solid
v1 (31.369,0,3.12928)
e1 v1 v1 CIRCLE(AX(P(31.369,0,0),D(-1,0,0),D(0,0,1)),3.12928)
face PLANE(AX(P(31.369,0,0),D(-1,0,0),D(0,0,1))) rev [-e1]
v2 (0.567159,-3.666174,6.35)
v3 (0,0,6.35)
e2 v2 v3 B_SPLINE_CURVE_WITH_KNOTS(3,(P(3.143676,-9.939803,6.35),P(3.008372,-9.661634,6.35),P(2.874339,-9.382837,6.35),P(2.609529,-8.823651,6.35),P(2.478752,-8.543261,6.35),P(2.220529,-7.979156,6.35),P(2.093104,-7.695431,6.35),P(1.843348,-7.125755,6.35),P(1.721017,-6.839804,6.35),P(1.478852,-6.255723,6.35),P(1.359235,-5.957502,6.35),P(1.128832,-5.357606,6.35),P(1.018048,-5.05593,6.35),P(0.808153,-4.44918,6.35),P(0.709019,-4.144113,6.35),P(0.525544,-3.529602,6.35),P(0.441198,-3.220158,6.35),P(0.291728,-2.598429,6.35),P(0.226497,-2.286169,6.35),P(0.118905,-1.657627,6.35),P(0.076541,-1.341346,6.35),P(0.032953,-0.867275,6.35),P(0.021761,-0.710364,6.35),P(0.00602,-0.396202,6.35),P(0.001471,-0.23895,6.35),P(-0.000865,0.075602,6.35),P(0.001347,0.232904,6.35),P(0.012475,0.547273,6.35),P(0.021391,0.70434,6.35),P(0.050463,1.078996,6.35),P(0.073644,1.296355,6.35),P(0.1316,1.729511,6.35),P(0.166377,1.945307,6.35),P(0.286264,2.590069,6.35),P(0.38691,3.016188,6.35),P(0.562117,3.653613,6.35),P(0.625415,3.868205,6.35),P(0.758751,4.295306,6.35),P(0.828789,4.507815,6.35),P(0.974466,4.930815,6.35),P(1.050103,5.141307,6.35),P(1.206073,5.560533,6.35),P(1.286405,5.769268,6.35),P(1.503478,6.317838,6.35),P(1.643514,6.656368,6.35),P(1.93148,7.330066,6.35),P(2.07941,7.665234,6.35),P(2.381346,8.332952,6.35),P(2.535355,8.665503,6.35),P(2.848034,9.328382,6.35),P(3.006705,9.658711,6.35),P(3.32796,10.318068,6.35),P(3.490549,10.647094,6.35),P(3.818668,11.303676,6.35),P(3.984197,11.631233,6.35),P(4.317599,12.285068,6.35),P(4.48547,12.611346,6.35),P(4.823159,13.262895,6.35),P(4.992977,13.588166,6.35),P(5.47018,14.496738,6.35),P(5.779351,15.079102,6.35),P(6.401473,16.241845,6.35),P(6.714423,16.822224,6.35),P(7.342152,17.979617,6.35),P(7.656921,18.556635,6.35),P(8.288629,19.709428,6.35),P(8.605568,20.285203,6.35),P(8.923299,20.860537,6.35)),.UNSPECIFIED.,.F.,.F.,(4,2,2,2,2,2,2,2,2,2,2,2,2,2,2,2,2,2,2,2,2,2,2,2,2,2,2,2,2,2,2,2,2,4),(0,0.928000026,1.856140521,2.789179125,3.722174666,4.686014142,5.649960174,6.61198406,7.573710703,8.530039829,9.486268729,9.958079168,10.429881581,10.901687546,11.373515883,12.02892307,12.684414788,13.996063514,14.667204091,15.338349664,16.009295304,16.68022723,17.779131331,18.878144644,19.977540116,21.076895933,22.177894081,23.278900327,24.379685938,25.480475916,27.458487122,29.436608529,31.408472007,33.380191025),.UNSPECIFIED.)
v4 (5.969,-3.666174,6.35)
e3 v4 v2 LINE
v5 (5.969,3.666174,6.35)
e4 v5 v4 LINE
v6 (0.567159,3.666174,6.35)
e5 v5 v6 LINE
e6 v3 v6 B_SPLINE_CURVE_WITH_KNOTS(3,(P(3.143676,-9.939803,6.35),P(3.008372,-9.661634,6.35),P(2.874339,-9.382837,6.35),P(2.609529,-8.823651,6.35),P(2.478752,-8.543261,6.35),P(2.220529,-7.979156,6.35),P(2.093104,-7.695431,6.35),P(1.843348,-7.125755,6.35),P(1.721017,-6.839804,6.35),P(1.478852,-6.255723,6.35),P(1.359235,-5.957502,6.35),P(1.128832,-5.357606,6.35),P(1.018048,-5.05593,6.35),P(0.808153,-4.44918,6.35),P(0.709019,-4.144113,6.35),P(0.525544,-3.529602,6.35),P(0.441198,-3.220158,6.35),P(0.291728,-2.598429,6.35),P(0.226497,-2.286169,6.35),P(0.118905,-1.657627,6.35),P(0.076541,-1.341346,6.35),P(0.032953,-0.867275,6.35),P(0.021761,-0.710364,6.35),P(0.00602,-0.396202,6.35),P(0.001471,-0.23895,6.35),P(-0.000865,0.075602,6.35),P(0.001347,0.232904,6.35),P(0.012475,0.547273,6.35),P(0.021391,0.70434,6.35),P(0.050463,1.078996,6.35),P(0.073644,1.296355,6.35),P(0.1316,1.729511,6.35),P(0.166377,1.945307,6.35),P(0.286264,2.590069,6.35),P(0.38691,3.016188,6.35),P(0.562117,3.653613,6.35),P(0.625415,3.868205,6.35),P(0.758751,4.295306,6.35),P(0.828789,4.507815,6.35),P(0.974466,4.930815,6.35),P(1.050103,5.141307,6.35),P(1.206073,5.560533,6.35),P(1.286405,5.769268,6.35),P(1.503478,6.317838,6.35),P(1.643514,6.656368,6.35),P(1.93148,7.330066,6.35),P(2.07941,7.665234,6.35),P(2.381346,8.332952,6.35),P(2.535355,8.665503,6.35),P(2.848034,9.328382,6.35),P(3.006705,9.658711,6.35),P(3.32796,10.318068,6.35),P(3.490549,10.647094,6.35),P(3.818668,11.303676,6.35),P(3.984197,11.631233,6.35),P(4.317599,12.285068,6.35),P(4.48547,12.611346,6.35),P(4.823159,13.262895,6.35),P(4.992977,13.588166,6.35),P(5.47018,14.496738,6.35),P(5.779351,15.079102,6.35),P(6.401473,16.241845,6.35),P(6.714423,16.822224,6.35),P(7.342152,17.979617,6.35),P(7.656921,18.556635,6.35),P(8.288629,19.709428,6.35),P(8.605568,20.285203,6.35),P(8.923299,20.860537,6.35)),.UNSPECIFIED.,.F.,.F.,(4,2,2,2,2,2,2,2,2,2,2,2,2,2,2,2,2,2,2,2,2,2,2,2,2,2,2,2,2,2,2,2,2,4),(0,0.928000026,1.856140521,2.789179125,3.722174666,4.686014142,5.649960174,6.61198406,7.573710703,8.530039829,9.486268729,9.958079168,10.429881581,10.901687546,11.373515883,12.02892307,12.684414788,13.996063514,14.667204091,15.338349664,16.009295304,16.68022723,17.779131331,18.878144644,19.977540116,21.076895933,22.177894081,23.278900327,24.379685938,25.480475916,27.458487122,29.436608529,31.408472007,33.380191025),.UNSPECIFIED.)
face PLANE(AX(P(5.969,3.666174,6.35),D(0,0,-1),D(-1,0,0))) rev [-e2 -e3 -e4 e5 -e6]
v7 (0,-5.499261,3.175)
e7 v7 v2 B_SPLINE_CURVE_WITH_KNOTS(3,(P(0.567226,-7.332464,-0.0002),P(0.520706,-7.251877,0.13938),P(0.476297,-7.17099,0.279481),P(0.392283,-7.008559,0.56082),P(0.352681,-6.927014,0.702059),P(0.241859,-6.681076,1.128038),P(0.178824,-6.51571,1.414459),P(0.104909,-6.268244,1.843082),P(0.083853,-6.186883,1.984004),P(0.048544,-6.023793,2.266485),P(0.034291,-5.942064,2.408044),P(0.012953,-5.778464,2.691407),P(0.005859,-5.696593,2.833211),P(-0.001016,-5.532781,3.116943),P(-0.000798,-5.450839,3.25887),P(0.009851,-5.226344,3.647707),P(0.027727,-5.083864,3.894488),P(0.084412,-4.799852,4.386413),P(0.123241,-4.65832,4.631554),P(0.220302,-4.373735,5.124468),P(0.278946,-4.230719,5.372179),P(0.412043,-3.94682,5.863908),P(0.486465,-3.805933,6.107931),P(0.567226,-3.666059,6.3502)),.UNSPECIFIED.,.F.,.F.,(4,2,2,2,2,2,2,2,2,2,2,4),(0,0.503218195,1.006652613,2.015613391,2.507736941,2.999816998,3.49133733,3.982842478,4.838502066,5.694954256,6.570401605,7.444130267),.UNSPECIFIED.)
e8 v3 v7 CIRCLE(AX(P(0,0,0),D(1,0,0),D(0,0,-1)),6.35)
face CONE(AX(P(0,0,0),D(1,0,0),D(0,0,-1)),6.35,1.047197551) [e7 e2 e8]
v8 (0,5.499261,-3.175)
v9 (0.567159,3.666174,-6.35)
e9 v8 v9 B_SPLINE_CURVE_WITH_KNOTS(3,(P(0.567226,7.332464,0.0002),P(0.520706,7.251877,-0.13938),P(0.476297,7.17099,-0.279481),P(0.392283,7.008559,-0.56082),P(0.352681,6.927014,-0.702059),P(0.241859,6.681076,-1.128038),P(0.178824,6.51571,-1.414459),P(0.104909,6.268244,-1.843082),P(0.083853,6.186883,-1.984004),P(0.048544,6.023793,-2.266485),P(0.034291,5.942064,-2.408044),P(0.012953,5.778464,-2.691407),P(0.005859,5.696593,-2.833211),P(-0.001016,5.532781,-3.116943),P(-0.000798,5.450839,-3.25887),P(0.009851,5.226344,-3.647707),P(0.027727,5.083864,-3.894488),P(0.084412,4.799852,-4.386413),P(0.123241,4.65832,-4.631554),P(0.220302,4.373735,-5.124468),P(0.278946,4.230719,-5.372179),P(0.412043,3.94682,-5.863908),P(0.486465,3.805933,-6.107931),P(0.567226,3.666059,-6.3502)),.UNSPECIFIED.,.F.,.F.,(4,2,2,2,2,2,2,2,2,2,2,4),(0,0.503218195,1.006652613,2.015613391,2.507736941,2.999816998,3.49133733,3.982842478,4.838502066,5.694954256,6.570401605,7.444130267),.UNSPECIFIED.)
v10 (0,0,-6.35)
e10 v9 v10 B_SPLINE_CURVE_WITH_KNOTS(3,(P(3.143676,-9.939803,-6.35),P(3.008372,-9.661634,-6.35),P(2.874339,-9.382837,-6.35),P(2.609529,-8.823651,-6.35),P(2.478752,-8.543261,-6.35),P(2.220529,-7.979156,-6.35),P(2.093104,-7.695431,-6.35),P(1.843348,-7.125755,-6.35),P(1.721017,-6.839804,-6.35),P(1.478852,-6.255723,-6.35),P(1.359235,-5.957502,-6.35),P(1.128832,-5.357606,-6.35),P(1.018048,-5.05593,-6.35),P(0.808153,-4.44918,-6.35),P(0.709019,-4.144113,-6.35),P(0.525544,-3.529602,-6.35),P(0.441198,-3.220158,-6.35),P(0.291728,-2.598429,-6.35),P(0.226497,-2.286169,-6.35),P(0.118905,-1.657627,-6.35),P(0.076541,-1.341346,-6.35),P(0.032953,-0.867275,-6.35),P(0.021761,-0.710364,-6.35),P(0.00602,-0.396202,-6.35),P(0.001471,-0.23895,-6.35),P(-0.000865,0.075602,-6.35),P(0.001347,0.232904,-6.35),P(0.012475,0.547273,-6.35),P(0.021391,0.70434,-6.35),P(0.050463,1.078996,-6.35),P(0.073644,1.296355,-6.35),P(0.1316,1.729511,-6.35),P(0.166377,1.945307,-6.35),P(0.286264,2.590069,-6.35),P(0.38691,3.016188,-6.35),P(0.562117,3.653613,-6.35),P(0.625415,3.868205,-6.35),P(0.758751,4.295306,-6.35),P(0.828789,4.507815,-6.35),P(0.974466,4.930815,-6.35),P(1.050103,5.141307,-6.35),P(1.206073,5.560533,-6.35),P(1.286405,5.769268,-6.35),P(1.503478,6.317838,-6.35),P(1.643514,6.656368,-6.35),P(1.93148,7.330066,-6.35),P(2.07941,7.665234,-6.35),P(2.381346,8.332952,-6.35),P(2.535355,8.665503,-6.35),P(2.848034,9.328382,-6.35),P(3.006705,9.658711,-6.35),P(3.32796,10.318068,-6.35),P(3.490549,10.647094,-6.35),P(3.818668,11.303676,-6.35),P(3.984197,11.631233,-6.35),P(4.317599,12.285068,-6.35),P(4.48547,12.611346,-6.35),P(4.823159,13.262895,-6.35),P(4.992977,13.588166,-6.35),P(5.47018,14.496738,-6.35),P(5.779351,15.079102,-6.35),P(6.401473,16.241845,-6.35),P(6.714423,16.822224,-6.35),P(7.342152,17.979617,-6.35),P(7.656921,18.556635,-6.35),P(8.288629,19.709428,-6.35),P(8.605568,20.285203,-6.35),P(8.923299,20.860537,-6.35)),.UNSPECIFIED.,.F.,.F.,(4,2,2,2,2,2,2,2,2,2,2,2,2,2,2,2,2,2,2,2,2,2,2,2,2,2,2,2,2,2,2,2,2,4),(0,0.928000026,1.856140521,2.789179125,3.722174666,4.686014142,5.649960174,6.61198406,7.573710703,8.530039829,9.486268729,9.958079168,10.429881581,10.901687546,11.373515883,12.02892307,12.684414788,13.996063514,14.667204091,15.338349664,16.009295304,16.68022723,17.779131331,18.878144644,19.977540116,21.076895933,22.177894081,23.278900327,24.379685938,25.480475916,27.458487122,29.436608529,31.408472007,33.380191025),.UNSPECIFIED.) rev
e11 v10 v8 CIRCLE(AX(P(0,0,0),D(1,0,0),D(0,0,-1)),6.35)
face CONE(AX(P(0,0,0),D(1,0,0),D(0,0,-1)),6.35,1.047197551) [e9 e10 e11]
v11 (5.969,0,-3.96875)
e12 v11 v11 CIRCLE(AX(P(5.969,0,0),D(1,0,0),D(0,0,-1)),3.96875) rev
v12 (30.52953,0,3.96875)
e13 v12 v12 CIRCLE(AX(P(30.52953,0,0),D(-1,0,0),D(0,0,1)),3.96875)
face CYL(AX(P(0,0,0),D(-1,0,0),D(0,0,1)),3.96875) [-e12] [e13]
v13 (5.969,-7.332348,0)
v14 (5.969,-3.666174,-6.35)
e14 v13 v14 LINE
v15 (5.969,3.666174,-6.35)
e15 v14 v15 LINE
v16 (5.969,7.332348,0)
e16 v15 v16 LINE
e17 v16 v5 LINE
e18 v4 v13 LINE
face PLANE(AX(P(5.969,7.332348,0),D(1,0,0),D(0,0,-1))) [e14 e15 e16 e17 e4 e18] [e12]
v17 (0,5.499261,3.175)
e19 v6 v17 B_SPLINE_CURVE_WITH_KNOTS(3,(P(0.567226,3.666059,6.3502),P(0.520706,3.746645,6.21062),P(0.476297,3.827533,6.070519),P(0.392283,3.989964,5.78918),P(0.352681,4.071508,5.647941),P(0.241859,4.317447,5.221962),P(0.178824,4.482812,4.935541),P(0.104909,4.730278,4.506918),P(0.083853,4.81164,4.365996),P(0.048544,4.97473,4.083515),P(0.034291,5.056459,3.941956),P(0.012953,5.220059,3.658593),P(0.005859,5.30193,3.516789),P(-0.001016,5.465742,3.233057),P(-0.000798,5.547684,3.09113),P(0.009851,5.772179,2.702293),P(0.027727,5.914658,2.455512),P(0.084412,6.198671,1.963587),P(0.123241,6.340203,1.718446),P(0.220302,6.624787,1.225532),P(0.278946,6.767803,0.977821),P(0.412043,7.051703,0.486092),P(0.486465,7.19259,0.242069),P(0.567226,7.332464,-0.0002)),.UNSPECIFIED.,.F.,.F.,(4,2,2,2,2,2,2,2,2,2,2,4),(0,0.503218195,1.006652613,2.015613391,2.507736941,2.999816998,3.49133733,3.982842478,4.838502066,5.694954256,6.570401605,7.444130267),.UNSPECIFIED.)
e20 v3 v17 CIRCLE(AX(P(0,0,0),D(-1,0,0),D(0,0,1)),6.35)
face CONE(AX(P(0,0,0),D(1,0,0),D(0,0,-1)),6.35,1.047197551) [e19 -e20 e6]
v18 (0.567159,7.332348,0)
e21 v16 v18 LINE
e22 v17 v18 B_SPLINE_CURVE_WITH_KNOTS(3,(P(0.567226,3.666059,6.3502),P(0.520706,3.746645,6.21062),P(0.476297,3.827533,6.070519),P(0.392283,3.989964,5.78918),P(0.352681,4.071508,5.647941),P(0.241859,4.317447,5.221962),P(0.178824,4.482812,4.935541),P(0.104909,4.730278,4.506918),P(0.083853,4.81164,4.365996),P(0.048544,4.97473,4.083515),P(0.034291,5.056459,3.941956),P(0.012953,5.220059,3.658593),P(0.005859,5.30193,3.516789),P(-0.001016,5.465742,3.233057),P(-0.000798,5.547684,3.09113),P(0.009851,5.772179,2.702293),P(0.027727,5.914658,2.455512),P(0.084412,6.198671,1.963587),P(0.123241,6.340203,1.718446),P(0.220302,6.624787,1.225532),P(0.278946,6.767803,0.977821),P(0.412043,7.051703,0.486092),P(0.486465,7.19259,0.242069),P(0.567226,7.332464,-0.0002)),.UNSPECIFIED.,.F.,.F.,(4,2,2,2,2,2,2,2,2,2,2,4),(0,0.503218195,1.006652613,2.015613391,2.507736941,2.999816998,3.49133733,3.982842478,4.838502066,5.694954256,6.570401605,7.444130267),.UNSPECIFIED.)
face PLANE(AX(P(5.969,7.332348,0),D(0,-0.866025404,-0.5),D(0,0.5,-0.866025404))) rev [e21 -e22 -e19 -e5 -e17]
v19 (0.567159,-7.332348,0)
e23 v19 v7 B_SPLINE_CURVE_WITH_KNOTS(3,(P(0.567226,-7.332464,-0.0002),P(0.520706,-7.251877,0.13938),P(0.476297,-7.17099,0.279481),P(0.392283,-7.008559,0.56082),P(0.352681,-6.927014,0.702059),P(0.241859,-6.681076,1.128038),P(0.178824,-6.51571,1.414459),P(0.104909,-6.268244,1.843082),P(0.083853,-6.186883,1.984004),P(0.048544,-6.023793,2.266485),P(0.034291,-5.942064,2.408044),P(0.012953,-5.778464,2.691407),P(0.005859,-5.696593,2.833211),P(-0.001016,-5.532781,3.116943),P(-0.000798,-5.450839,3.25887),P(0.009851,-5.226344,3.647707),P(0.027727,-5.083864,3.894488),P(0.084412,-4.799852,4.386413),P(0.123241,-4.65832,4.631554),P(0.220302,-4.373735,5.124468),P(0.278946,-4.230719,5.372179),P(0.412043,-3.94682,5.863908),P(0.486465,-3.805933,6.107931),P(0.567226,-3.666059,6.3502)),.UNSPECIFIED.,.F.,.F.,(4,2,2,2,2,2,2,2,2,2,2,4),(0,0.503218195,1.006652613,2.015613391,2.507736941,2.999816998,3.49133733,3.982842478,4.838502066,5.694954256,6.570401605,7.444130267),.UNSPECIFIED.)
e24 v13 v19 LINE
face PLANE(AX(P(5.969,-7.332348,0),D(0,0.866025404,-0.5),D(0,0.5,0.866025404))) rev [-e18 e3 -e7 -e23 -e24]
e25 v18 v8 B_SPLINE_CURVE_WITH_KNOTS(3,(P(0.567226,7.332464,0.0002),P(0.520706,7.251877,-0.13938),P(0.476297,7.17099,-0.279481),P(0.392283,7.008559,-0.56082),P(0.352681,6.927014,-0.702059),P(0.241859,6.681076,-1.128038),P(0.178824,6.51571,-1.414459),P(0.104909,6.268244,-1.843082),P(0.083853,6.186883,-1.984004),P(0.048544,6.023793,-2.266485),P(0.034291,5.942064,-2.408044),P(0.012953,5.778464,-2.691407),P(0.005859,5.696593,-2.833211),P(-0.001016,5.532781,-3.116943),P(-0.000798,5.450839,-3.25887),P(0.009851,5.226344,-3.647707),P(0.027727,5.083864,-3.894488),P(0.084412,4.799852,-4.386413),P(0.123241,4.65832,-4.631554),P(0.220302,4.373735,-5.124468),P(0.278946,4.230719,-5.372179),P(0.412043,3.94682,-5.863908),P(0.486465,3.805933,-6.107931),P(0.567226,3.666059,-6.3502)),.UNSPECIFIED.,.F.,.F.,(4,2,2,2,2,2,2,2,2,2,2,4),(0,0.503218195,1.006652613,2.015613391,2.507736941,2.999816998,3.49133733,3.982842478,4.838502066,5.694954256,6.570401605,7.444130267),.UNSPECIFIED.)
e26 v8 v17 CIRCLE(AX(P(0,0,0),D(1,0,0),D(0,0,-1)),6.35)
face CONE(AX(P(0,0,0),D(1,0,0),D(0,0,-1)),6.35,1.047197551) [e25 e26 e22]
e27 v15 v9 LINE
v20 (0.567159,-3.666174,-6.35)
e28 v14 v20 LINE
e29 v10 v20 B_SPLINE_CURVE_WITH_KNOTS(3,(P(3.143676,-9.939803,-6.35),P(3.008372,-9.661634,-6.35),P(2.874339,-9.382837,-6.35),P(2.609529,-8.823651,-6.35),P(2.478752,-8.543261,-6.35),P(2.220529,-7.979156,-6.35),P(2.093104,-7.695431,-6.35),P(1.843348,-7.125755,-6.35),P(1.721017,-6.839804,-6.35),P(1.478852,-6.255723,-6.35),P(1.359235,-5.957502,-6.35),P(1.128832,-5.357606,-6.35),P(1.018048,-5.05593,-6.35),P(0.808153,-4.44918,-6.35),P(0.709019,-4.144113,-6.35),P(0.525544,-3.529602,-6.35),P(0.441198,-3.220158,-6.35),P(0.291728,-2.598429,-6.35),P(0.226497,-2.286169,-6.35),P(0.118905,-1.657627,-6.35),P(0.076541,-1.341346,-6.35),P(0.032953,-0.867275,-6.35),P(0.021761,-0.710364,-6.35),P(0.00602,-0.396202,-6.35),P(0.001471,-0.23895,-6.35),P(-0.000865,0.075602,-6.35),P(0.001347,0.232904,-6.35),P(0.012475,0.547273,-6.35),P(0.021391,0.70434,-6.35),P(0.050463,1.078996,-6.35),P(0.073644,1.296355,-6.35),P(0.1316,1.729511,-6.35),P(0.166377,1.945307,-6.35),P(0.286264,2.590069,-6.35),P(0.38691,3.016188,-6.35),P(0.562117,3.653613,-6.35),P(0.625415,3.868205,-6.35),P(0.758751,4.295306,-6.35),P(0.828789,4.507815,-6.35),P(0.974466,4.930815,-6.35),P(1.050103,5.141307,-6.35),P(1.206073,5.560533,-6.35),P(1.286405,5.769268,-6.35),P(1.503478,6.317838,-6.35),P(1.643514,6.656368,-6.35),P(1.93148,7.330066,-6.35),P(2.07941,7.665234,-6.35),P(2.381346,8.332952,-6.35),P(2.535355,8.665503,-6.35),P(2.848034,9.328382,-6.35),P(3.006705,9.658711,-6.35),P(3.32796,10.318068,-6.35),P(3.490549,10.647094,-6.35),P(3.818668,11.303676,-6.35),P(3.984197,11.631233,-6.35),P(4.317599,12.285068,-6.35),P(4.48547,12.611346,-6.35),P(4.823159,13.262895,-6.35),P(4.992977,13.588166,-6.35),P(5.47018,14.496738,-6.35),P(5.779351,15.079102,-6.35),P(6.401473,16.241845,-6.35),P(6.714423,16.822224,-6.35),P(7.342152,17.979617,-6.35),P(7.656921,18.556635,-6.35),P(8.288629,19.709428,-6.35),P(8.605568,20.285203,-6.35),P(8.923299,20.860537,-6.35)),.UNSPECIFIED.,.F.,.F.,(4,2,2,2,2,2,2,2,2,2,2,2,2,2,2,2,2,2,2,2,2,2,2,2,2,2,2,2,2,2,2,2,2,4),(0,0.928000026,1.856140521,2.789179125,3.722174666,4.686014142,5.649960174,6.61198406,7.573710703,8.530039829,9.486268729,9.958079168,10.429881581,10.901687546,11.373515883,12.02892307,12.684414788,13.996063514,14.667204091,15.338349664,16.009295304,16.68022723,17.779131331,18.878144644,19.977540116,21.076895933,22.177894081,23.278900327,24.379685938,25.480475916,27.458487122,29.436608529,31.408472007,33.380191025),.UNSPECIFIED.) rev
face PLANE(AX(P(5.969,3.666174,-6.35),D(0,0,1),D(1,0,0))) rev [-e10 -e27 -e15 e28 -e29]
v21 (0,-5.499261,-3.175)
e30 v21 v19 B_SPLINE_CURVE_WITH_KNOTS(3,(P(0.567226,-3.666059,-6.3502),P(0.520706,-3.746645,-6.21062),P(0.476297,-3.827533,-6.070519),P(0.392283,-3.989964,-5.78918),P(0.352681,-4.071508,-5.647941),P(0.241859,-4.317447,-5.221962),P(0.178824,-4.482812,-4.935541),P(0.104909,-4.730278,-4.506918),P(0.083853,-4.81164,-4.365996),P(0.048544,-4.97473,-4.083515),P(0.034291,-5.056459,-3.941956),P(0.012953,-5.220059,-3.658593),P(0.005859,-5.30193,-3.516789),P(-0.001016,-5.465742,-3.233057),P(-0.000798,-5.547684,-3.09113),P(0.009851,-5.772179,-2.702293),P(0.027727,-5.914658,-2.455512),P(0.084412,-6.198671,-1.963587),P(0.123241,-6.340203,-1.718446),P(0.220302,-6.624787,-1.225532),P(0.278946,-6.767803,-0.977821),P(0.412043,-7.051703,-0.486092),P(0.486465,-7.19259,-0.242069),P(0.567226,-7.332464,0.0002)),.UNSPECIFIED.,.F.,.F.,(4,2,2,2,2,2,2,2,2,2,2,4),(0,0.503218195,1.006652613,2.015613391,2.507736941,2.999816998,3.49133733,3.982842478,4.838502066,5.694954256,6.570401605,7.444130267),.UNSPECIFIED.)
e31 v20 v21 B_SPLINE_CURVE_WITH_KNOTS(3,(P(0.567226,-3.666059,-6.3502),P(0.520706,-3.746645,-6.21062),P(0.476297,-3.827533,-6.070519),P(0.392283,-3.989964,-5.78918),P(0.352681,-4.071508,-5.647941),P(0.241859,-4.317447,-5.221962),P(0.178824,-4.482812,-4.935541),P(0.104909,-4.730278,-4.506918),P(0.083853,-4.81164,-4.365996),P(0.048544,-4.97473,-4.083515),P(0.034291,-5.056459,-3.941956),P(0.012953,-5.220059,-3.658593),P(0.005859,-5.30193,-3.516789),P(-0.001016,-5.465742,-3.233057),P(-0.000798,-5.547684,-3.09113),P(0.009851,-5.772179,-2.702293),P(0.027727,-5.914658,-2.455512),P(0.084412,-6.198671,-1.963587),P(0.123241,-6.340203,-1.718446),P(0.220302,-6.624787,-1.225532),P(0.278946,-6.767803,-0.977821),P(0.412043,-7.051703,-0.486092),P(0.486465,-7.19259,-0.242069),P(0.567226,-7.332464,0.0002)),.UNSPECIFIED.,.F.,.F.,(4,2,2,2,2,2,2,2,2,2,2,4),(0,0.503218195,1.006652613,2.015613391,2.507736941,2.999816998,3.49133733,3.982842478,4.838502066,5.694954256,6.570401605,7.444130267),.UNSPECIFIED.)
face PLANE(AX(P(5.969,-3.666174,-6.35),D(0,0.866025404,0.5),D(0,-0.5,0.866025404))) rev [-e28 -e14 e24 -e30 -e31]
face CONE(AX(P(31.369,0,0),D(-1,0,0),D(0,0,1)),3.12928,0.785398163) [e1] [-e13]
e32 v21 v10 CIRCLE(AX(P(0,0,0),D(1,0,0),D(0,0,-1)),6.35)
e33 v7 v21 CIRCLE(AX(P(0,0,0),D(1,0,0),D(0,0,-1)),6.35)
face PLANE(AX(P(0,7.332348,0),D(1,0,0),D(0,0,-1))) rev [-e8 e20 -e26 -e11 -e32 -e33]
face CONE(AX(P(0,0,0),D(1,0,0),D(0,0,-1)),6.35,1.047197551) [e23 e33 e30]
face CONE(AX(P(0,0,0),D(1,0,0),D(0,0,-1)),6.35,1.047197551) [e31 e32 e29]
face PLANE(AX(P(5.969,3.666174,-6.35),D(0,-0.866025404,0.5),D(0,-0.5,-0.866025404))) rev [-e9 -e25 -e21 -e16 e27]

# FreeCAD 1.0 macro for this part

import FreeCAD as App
import Part
import Sketcher

V = App.Vector
Q = App.Units.Quantity


def add_polygon(sketch, points):
    """Adds a closed chain of lines whose ends are joined by coincident constraints."""
    first, n = sketch.GeometryCount, len(points)
    for a, b in zip(points, points[1:] + points[:1]):
        sketch.addGeometry(Part.LineSegment(App.Vector(*a, 0), App.Vector(*b, 0)), False)
    for i in range(n):
        sketch.addConstraint(Sketcher.Constraint("Coincident", first + i, 2, first + (i + 1) % n, 1))

doc = App.newDocument("Part")
body = doc.addObject("PartDesign::Body", "Body")

# Sketch on YZ plane
sketch1 = body.newObject("Sketcher::SketchObject", "Sketch")
sketch1.AttachmentSupport = (doc.getObject("YZ_Plane"), [""])
sketch1.MapMode = "FlatFace"
add_polygon(sketch1, [(-3.666174, -6.35), (3.666174, -6.35), (7.332348, 0), (3.666174, 6.35), (-3.666174, 6.35), (-7.332348, 0)])  # lines 0-5
sketch1.addConstraint([
    Sketcher.Constraint("Horizontal", 0),
    Sketcher.Constraint("Horizontal", 3),
    Sketcher.Constraint("Symmetric", 0, 2, 3, 2, -1, 1),
    Sketcher.Constraint("Symmetric", 1, 2, 4, 2, -1, 1),
    Sketcher.Constraint("PointOnObject", 1, 2, -1),
    Sketcher.Constraint("Parallel", 2, 5),
    Sketcher.Constraint("Vertical", 0, 2, 2, 2),
    Sketcher.Constraint("Angle", 1, Q("60 deg")),
    Sketcher.Constraint("DistanceY", 0, 2, 2, 2, Q("0.5 in")),
    Sketcher.Constraint("DistanceX", 0, 1, 0, 2, 7.332348),
])
pad1 = body.newObject("PartDesign::Pad", "Pad")
pad1.Profile = sketch1
pad1.Length = Q("0.235 in")

# Sketch on XY plane
sketch2 = body.newObject("Sketcher::SketchObject", "Sketch001")
sketch2.AttachmentSupport = (doc.getObject("XY_Plane"), [""])
sketch2.MapMode = "FlatFace"
add_polygon(sketch2, [(0, 0), (31.369, 0), (31.369, 3.12928), (30.52953, 3.96875), (0, 3.96875)])  # lines 0-4
sketch2.addConstraint([
    Sketcher.Constraint("Horizontal", 0),
    Sketcher.Constraint("Vertical", 1),
    Sketcher.Constraint("Horizontal", 3),
    Sketcher.Constraint("Vertical", 4),
    Sketcher.Constraint("Coincident", 4, 2, -1, 1),
    Sketcher.Constraint("Angle", 2, Q("135 deg")),
    Sketcher.Constraint("DistanceX", 0, 1, 0, 2, Q("1.235 in")),
    Sketcher.Constraint("DistanceY", 4, 2, 4, 1, Q("0.15625 in")),
    Sketcher.Constraint("DistanceY", 1, 1, 1, 2, Q("0.1232 in")),
])
revolution = body.newObject("PartDesign::Revolution", "Revolution")
revolution.Profile = sketch2
revolution.ReferenceAxis = (sketch2, ["H_Axis"])
revolution.Angle = 360

# Sketch on XY plane
sketch3 = body.newObject("Sketcher::SketchObject", "Sketch002")
sketch3.AttachmentSupport = (doc.getObject("XY_Plane"), [""])
sketch3.MapMode = "FlatFace"
add_polygon(sketch3, [(0, 6.35), (4.233333, 13.682348), (4.233333, 20.032348), (-12.7, 20.032348), (-12.7, 6.35)])  # lines 0-4
sketch3.addConstraint([
    Sketcher.Constraint("Vertical", 1),
    Sketcher.Constraint("Horizontal", 2),
    Sketcher.Constraint("Vertical", 3),
    Sketcher.Constraint("Horizontal", 4),
    Sketcher.Constraint("PointOnObject", 4, 2, -2),
    Sketcher.Constraint("DistanceX", 4, 1, 4, 2, Q("0.5 in")),
    Sketcher.Constraint("Angle", 0, Q("60 deg")),
    Sketcher.Constraint("DistanceY", 1, 1, 1, 2, Q("0.25 in")),
    Sketcher.Constraint("DistanceY", -1, 1, 3, 2, Q("0.25 in")),
    Sketcher.Constraint("DistanceY", 3, 2, 3, 1, 13.682348),
])
groove = body.newObject("PartDesign::Groove", "Groove")
groove.Profile = sketch3
groove.ReferenceAxis = (sketch3, ["H_Axis"])
groove.Angle = 360

doc.recompute()
